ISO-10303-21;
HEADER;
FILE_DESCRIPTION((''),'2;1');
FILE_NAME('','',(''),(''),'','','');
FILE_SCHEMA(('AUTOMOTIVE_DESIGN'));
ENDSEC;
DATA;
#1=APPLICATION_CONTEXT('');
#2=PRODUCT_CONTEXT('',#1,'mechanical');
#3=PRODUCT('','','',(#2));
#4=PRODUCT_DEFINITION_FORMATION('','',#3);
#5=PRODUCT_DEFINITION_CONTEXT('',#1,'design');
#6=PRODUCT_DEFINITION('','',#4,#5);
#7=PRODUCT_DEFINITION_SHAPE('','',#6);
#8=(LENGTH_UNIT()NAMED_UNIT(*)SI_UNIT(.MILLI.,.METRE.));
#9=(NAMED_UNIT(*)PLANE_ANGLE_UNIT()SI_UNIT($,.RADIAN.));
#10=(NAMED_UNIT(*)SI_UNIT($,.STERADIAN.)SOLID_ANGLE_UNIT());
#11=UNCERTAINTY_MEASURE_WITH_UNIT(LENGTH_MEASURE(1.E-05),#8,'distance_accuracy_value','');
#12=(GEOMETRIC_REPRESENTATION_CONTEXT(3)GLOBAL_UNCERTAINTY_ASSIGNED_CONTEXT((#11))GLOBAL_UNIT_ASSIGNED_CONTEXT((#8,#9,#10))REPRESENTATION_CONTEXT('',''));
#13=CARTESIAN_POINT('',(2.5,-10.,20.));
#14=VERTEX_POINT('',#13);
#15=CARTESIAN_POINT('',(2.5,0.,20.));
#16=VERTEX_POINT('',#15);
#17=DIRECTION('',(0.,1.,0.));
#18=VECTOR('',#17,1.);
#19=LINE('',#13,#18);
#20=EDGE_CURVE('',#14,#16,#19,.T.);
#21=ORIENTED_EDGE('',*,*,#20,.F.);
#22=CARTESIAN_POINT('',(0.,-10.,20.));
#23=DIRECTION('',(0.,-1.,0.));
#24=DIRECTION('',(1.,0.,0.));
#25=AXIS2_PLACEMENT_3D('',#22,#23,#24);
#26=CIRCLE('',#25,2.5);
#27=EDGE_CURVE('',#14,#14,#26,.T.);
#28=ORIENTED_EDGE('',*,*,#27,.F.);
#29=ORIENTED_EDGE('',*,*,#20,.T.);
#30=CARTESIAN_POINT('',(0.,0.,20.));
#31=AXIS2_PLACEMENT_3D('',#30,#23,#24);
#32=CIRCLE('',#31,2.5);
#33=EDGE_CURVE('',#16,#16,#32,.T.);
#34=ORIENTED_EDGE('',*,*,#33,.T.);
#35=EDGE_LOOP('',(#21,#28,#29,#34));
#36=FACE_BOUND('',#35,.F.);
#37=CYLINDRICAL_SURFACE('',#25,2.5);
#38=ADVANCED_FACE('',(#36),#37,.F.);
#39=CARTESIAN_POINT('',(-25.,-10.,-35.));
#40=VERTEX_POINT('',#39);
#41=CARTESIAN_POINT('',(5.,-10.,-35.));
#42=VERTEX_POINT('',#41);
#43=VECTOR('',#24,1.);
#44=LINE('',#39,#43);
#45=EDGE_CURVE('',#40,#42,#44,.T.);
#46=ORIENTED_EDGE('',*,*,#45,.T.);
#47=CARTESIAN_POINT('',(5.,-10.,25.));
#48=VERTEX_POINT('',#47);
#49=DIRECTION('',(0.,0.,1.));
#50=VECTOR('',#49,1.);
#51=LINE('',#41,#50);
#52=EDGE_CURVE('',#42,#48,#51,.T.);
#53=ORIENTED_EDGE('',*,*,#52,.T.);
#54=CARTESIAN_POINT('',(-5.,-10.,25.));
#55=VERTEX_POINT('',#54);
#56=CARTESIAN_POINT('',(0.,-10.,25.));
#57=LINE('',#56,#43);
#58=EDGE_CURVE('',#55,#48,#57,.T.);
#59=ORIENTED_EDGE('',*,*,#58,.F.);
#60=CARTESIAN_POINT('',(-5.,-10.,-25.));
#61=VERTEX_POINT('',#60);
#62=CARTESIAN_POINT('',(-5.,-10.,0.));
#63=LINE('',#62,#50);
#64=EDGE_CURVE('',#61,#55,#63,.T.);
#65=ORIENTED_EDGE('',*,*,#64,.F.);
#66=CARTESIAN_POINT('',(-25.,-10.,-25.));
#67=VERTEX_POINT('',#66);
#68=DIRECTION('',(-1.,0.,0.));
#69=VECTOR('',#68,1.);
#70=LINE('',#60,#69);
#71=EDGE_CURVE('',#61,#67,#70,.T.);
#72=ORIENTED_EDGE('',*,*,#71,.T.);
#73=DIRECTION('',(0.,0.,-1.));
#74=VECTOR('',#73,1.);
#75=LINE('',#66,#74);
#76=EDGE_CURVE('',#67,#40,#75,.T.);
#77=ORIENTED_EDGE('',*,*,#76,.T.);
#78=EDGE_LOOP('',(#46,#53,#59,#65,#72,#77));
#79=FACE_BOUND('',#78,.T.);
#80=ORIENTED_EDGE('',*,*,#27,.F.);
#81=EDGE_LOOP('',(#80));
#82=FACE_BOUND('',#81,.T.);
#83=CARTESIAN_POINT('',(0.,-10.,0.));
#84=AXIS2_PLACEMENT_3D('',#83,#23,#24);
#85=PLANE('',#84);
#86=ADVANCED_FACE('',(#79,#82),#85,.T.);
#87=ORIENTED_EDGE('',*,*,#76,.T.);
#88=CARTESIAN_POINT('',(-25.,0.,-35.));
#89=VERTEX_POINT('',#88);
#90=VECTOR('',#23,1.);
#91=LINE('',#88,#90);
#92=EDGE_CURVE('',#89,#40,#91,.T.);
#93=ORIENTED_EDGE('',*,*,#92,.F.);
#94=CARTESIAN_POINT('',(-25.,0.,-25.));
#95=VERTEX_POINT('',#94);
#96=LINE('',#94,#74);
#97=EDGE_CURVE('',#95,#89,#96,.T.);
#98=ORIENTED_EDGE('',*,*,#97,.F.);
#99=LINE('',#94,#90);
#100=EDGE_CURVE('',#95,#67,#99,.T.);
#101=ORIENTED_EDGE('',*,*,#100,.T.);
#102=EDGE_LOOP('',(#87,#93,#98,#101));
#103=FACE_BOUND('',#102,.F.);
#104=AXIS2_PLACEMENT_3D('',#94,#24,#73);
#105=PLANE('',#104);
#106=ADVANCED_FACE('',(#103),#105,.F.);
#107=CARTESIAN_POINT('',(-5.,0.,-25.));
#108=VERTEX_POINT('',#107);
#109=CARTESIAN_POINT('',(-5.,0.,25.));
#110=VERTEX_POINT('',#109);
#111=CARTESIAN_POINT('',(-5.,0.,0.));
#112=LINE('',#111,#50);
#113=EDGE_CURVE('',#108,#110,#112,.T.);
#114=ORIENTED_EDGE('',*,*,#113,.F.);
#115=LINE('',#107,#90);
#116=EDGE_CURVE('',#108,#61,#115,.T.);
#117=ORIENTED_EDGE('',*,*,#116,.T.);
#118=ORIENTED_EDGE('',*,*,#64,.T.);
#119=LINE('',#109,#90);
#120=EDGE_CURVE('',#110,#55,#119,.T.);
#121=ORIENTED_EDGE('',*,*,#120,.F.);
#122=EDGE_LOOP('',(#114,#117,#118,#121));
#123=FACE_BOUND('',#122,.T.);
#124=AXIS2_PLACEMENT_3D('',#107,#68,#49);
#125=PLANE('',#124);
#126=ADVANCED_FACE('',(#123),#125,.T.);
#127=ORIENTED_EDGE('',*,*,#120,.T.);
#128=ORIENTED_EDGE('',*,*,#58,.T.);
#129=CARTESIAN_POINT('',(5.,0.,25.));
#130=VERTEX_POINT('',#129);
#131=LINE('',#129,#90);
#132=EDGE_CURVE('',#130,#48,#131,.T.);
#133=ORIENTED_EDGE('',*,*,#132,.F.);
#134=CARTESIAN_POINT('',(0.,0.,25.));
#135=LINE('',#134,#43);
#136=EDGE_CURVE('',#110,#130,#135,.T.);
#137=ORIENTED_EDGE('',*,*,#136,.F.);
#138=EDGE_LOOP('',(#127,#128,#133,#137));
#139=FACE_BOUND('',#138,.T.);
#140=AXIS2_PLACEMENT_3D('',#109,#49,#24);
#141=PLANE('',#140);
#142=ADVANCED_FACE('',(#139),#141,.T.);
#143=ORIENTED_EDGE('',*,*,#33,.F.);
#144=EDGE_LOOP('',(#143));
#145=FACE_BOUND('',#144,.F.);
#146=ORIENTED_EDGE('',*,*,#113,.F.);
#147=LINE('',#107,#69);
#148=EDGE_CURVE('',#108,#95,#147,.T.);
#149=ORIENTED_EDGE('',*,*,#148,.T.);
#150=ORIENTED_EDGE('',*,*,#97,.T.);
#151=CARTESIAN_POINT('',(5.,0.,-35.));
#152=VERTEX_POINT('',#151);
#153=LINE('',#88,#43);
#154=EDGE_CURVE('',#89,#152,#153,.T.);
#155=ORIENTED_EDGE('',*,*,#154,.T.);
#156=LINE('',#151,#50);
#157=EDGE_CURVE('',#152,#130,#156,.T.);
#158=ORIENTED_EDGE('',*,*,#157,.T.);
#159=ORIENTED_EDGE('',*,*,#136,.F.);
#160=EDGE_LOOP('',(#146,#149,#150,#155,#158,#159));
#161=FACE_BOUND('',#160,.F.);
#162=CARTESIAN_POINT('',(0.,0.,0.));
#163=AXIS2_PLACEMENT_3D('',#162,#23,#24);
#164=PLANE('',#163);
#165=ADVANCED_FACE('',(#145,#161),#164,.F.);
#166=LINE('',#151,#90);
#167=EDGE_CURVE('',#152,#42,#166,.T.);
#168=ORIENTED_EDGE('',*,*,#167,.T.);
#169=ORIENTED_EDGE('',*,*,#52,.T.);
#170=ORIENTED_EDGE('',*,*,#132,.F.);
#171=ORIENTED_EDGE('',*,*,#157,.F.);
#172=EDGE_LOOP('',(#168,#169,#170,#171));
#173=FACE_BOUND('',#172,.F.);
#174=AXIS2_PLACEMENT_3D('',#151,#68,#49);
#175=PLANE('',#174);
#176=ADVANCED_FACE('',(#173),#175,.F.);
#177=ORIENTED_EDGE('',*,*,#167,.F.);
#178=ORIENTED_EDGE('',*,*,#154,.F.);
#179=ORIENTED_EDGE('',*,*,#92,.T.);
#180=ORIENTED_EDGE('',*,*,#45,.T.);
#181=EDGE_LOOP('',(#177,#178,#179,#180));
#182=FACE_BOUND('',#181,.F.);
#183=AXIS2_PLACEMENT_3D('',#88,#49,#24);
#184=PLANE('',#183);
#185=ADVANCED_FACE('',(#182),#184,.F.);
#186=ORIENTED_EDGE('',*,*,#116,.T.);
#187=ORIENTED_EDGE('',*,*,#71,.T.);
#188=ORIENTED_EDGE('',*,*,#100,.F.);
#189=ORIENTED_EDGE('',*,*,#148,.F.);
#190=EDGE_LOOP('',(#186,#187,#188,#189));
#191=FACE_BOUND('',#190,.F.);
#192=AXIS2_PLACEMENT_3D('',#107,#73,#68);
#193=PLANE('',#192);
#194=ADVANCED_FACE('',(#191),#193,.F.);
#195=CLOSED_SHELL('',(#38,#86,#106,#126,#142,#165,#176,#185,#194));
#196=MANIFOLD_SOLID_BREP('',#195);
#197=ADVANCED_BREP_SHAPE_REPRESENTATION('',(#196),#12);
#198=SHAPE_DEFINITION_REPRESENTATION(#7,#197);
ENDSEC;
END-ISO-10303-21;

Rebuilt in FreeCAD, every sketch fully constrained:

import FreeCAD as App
import Part
import Sketcher
Q = App.Units.Quantity

doc = App.newDocument("Part")
body = doc.addObject("PartDesign::Body", "Body")

sketch1 = body.newObject("Sketcher::SketchObject", "Sketch")
sketch1.AttachmentSupport = (doc.getObject("XZ_Plane"), [""])
sketch1.MapMode = "FlatFace"
sketch1.addGeometry([
    Part.LineSegment(App.Vector(-5, 25, 0), App.Vector(-5, -25, 0)),
    Part.LineSegment(App.Vector(-5, -25, 0), App.Vector(-25, -25, 0)),
    Part.LineSegment(App.Vector(-25, -25, 0), App.Vector(-25, -35, 0)),
    Part.LineSegment(App.Vector(-25, -35, 0), App.Vector(5, -35, 0)),
    Part.LineSegment(App.Vector(5, -35, 0), App.Vector(5, 25, 0)),
    Part.LineSegment(App.Vector(5, 25, 0), App.Vector(-5, 25, 0)),
], False)
sketch1.addConstraint([
    Sketcher.Constraint("Coincident", 0, 2, 1, 1),
    Sketcher.Constraint("Coincident", 1, 2, 2, 1),
    Sketcher.Constraint("Coincident", 2, 2, 3, 1),
    Sketcher.Constraint("Coincident", 3, 2, 4, 1),
    Sketcher.Constraint("Coincident", 4, 2, 5, 1),
    Sketcher.Constraint("Coincident", 5, 2, 0, 1),
    Sketcher.Constraint("Vertical", 0),
    Sketcher.Constraint("Horizontal", 1),
    Sketcher.Constraint("Vertical", 2),
    Sketcher.Constraint("Horizontal", 3),
    Sketcher.Constraint("Vertical", 4),
    Sketcher.Constraint("Horizontal", 5),
    Sketcher.Constraint("Symmetric", 0, 2, 4, 2, -1, 1),
    Sketcher.Constraint("Equal", 5, 2),
    Sketcher.Constraint("DistanceX", 1, 2, 1, 1, Q("20 mm")),
    Sketcher.Constraint("DistanceX", 3, 1, 3, 2, Q("30 mm")),
    Sketcher.Constraint("DistanceY", 0, 2, 0, 1, Q("50 mm")),
])
pad1 = body.newObject("PartDesign::Pad", "Pad")
pad1.Profile = sketch1
pad1.Length = 10

sketch2 = body.newObject("Sketcher::SketchObject", "Sketch001")
sketch2.AttachmentSupport = (doc.getObject("XZ_Plane"), [""])
sketch2.MapMode = "FlatFace"
sketch2.AttachmentOffset = App.Placement(App.Vector(0, 0, 10), App.Rotation())
sketch2.addGeometry(Part.Circle(App.Vector(0, 20, 0), App.Vector(0, 0, 1), 2.5), False)
sketch2.addConstraint([
    Sketcher.Constraint("PointOnObject", 0, 3, -2),
    Sketcher.Constraint("Diameter", 0, Q("5 mm")),
    Sketcher.Constraint("DistanceY", -1, 1, 0, 3, Q("20 mm")),
])
pocket1 = body.newObject("PartDesign::Pocket", "Pocket")
pocket1.Profile = sketch2
pocket1.Type = "ThroughAll"

doc.recompute()
